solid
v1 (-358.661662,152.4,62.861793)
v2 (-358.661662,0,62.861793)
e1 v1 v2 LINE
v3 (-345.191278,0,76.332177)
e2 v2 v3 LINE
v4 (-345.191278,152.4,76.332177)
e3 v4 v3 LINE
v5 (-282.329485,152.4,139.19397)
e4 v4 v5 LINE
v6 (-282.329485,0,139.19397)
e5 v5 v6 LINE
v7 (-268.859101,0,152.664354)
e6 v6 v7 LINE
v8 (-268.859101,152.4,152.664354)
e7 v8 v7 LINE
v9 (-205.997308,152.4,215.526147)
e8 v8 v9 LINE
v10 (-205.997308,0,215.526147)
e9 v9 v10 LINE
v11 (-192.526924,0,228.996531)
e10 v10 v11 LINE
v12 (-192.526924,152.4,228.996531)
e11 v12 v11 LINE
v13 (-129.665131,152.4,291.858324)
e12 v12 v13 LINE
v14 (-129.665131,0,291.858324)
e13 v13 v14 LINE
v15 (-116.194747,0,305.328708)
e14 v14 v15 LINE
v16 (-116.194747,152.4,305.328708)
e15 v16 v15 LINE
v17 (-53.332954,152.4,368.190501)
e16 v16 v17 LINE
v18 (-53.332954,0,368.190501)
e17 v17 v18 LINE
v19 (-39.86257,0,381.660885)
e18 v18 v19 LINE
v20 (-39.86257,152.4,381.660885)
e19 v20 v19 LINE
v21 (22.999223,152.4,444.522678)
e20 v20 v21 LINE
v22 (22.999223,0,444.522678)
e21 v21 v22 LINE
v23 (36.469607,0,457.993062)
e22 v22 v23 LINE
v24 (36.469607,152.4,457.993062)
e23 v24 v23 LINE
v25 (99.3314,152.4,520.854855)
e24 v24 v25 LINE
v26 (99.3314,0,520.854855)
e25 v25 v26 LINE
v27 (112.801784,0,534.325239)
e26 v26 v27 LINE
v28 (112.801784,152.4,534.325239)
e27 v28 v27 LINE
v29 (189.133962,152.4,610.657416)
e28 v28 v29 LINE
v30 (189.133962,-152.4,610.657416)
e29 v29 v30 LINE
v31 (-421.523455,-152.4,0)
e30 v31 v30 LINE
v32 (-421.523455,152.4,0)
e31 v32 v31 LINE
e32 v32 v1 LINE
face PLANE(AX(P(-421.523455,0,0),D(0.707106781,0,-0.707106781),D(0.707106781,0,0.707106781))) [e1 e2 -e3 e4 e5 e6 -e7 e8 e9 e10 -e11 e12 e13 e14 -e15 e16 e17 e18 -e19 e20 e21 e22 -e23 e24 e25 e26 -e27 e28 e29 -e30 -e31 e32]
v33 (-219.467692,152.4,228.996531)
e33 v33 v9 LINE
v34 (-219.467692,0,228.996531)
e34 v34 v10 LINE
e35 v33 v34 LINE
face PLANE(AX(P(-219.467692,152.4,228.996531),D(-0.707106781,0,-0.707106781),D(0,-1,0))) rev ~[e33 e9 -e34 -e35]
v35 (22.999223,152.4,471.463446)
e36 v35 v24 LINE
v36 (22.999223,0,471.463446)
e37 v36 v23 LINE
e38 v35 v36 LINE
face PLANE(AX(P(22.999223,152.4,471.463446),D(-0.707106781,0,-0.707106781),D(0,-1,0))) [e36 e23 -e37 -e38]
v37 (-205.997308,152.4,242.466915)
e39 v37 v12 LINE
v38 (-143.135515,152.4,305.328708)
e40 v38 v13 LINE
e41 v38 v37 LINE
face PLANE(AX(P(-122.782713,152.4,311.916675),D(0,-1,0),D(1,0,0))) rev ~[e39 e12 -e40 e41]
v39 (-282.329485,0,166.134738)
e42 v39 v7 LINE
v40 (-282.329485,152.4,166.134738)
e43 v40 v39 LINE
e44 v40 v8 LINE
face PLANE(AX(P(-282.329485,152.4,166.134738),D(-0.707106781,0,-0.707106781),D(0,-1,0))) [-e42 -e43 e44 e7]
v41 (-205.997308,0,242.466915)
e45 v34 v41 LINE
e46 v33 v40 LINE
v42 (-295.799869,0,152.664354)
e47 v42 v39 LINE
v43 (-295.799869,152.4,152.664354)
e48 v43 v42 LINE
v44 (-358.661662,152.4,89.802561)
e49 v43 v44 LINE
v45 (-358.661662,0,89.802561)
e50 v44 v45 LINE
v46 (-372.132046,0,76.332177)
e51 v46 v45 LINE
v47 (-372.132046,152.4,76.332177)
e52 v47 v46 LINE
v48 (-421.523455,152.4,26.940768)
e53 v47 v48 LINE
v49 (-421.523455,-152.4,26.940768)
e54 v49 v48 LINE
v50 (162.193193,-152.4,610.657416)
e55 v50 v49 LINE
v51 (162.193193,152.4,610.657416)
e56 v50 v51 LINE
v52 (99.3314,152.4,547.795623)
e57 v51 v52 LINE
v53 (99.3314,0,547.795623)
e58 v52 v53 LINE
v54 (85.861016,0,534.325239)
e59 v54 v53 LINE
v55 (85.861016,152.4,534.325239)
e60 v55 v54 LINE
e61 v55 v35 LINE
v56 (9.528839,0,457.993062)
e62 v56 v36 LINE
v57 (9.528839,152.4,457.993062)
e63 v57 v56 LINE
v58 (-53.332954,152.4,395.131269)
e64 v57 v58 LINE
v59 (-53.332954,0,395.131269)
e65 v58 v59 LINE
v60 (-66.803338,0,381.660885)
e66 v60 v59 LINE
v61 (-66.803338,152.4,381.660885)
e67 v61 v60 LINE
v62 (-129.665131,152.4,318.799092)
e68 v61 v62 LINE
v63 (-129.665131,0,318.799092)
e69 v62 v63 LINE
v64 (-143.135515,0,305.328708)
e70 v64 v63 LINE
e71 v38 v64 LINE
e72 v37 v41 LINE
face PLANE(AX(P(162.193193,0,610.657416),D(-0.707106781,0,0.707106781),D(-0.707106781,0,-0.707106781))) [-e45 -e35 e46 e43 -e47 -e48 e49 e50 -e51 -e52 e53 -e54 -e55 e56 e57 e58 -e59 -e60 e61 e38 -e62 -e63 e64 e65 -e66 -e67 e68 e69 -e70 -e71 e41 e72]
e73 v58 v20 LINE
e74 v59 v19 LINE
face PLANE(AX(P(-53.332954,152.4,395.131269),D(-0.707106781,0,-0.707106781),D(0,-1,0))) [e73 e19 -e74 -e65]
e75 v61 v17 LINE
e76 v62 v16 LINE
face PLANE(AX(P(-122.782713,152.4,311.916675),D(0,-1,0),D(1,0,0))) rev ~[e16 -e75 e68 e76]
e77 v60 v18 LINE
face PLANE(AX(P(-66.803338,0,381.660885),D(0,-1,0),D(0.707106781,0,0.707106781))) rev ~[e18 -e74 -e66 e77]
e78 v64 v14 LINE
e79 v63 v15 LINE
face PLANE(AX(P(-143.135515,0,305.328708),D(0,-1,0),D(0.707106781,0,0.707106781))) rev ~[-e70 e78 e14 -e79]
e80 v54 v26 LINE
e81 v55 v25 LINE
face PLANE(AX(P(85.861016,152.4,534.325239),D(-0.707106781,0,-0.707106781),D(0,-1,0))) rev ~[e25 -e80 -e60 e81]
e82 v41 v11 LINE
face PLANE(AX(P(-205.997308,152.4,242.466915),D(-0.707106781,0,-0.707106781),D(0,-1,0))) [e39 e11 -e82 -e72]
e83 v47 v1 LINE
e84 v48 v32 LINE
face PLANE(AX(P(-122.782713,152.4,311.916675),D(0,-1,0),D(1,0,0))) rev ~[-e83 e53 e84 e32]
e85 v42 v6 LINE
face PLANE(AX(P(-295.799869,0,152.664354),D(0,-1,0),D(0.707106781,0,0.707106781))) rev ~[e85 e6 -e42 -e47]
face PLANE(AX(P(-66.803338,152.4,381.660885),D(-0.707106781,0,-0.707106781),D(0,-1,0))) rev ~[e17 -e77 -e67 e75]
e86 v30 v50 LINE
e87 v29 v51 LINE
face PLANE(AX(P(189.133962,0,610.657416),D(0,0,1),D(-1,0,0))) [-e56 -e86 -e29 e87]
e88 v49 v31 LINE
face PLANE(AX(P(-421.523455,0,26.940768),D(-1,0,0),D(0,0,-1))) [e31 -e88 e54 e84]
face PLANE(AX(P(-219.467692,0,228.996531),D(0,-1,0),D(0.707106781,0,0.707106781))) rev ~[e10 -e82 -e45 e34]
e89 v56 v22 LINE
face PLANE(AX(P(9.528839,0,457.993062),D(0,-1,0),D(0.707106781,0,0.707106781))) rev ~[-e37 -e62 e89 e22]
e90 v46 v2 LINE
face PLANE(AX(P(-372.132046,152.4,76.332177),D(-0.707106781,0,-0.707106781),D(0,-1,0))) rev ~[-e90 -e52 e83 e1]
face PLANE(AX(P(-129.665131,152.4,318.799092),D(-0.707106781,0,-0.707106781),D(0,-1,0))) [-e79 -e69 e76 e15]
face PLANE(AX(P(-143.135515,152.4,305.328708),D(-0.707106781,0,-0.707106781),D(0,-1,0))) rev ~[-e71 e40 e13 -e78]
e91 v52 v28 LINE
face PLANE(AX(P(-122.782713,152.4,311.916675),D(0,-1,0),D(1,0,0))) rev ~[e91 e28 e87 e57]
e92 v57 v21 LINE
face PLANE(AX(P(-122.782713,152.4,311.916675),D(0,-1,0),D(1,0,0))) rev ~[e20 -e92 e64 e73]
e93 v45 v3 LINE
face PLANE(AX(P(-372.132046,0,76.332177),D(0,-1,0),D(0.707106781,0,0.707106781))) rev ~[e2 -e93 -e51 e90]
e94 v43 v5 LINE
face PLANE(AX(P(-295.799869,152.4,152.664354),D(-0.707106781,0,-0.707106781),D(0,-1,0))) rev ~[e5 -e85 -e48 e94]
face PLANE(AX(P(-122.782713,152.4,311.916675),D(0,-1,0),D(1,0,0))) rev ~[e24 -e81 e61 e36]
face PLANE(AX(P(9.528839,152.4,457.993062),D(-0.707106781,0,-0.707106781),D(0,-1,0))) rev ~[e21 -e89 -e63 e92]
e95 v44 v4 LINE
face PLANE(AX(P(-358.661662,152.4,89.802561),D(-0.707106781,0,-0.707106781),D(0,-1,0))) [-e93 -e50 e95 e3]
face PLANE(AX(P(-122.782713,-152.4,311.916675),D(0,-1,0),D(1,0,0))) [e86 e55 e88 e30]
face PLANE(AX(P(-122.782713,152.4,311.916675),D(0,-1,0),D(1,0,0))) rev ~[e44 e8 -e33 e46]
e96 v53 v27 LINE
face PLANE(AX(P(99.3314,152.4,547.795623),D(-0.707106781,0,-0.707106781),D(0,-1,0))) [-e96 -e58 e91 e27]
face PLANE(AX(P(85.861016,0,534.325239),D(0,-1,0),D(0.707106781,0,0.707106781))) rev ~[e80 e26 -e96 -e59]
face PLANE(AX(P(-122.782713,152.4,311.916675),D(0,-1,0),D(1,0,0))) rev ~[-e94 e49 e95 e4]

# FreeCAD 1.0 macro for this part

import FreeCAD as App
import Part
import Sketcher
Q = App.Units.Quantity


def add_polygon(sketch, points):
    """Adds a closed chain of lines whose ends are joined by coincident constraints."""
    first, n = sketch.GeometryCount, len(points)
    for a, b in zip(points, points[1:] + points[:1]):
        sketch.addGeometry(Part.LineSegment(App.Vector(*a, 0), App.Vector(*b, 0)), False)
    for i in range(n):
        sketch.addConstraint(Sketcher.Constraint("Coincident", first + i, 2, first + (i + 1) % n, 1))

doc = App.newDocument("Part")
body = doc.addObject("PartDesign::Body", "Body")

sketch1 = body.newObject("Sketcher::SketchObject", "Sketch")
sketch1.AttachmentSupport = (doc.getObject("XZ_Plane"), [""])
sketch1.MapMode = "FlatFace"
add_polygon(sketch1, [(-422, 27), (-422, 0), (189, 611), (162, 611)])
sketch1.addConstraint([
    Sketcher.Constraint("Vertical", 0),
    Sketcher.Constraint("Horizontal", 2),
    Sketcher.Constraint("PointOnObject", 0, 2, -1),
    Sketcher.Constraint("Parallel", 1, 3),
    Sketcher.Constraint("Equal", 2, 0),
    Sketcher.Constraint("Distance", 1, Q("34 in")),
    Sketcher.Constraint("Distance", 3, Q("32.5 in")),
    Sketcher.Constraint("DistanceX", -1, 1, 1, 2, Q("189.133962 mm")),
])
pad1 = body.newObject("PartDesign::Pad", "Pad")
pad1.Profile = sketch1
pad1.Length = Q("12 in")
pad1.Midplane = True

sketch2 = body.newObject("Sketcher::SketchObject", "Sketch001")
sketch2.Placement = App.Placement(App.Vector(-224.232112, 0, 224.232112), App.Rotation(App.Vector(0, -1, 0), App.Vector(0.707106781, 0, 0.707106781), App.Vector(-0.707106781, 0, 0.707106781), "ZXY"))
add_polygon(sketch2, [(-152, -190), (-152, -209), (0, -209), (0, -190)])
add_polygon(sketch2, [(-152, -82), (-152, -101), (0, -101), (0, -82)])
add_polygon(sketch2, [(-152, 26), (-152, 7), (0, 7), (0, 26)])
add_polygon(sketch2, [(-152, 134), (-152, 115), (0, 115), (0, 134)])
add_polygon(sketch2, [(-152, 242), (-152, 223), (0, 223), (0, 242)])
add_polygon(sketch2, [(-152, 350), (-152, 331), (0, 331), (0, 350)])
add_polygon(sketch2, [(-152, 458), (-152, 439), (0, 439), (0, 458)])
sketch2.addConstraint([
    Sketcher.Constraint("Vertical", 0),
    Sketcher.Constraint("Horizontal", 1),
    Sketcher.Constraint("Vertical", 2),
    Sketcher.Constraint("Horizontal", 3),
    Sketcher.Constraint("Vertical", 4),
    Sketcher.Constraint("Horizontal", 5),
    Sketcher.Constraint("Vertical", 6),
    Sketcher.Constraint("Horizontal", 7),
    Sketcher.Constraint("Vertical", 8),
    Sketcher.Constraint("Horizontal", 9),
    Sketcher.Constraint("Vertical", 10),
    Sketcher.Constraint("Horizontal", 11),
    Sketcher.Constraint("Vertical", 12),
    Sketcher.Constraint("Horizontal", 13),
    Sketcher.Constraint("Vertical", 14),
    Sketcher.Constraint("Horizontal", 15),
    Sketcher.Constraint("Vertical", 16),
    Sketcher.Constraint("Horizontal", 17),
    Sketcher.Constraint("Vertical", 18),
    Sketcher.Constraint("Horizontal", 19),
    Sketcher.Constraint("Vertical", 20),
    Sketcher.Constraint("Horizontal", 21),
    Sketcher.Constraint("Vertical", 22),
    Sketcher.Constraint("Horizontal", 23),
    Sketcher.Constraint("Vertical", 24),
    Sketcher.Constraint("Horizontal", 25),
    Sketcher.Constraint("Vertical", 26),
    Sketcher.Constraint("Horizontal", 27),
    Sketcher.Constraint("PointOnObject", 1, 2, -2),
    Sketcher.Constraint("PointOnObject", 5, 2, -2),
    Sketcher.Constraint("PointOnObject", 9, 2, -2),
    Sketcher.Constraint("PointOnObject", 13, 2, -2),
    Sketcher.Constraint("PointOnObject", 17, 2, -2),
    Sketcher.Constraint("PointOnObject", 21, 2, -2),
    Sketcher.Constraint("PointOnObject", 25, 2, -2),
    Sketcher.Constraint("Vertical", 3, 2, 4, 2),
    Sketcher.Constraint("Vertical", 7, 2, 8, 2),
    Sketcher.Constraint("Vertical", 11, 2, 12, 2),
    Sketcher.Constraint("Vertical", 15, 2, 16, 2),
    Sketcher.Constraint("Vertical", 19, 2, 20, 2),
    Sketcher.Constraint("Vertical", 23, 2, 24, 2),
    Sketcher.Constraint("Equal", 2, 4),
    Sketcher.Constraint("Equal", 6, 8),
    Sketcher.Constraint("Equal", 10, 12),
    Sketcher.Constraint("Equal", 14, 16),
    Sketcher.Constraint("Equal", 18, 20),
    Sketcher.Constraint("Equal", 22, 24),
    Sketcher.Constraint("DistanceX", 1, 1, 1, 2, Q("6 in")),
    Sketcher.Constraint("DistanceY", 1, 2, 6, 2, Q("5 in")),
    Sketcher.Constraint("DistanceY", 5, 2, 10, 2, Q("5 in")),
    Sketcher.Constraint("DistanceY", 9, 2, 14, 2, Q("5 in")),
    Sketcher.Constraint("DistanceY", 13, 2, 18, 2, Q("5 in")),
    Sketcher.Constraint("DistanceY", 17, 2, 22, 2, Q("5 in")),
    Sketcher.Constraint("DistanceY", 21, 2, 26, 2, Q("5 in")),
    Sketcher.Constraint("DistanceY", 0, 2, 0, 1, Q("0.75 in")),
    Sketcher.Constraint("DistanceY", 0, 2, -1, 1, Q("209.162093 mm")),
])
pocket1 = body.newObject("PartDesign::Pocket", "Pocket")
pocket1.Profile = sketch2
pocket1.Length = Q("0.75 in")

doc.recompute()
